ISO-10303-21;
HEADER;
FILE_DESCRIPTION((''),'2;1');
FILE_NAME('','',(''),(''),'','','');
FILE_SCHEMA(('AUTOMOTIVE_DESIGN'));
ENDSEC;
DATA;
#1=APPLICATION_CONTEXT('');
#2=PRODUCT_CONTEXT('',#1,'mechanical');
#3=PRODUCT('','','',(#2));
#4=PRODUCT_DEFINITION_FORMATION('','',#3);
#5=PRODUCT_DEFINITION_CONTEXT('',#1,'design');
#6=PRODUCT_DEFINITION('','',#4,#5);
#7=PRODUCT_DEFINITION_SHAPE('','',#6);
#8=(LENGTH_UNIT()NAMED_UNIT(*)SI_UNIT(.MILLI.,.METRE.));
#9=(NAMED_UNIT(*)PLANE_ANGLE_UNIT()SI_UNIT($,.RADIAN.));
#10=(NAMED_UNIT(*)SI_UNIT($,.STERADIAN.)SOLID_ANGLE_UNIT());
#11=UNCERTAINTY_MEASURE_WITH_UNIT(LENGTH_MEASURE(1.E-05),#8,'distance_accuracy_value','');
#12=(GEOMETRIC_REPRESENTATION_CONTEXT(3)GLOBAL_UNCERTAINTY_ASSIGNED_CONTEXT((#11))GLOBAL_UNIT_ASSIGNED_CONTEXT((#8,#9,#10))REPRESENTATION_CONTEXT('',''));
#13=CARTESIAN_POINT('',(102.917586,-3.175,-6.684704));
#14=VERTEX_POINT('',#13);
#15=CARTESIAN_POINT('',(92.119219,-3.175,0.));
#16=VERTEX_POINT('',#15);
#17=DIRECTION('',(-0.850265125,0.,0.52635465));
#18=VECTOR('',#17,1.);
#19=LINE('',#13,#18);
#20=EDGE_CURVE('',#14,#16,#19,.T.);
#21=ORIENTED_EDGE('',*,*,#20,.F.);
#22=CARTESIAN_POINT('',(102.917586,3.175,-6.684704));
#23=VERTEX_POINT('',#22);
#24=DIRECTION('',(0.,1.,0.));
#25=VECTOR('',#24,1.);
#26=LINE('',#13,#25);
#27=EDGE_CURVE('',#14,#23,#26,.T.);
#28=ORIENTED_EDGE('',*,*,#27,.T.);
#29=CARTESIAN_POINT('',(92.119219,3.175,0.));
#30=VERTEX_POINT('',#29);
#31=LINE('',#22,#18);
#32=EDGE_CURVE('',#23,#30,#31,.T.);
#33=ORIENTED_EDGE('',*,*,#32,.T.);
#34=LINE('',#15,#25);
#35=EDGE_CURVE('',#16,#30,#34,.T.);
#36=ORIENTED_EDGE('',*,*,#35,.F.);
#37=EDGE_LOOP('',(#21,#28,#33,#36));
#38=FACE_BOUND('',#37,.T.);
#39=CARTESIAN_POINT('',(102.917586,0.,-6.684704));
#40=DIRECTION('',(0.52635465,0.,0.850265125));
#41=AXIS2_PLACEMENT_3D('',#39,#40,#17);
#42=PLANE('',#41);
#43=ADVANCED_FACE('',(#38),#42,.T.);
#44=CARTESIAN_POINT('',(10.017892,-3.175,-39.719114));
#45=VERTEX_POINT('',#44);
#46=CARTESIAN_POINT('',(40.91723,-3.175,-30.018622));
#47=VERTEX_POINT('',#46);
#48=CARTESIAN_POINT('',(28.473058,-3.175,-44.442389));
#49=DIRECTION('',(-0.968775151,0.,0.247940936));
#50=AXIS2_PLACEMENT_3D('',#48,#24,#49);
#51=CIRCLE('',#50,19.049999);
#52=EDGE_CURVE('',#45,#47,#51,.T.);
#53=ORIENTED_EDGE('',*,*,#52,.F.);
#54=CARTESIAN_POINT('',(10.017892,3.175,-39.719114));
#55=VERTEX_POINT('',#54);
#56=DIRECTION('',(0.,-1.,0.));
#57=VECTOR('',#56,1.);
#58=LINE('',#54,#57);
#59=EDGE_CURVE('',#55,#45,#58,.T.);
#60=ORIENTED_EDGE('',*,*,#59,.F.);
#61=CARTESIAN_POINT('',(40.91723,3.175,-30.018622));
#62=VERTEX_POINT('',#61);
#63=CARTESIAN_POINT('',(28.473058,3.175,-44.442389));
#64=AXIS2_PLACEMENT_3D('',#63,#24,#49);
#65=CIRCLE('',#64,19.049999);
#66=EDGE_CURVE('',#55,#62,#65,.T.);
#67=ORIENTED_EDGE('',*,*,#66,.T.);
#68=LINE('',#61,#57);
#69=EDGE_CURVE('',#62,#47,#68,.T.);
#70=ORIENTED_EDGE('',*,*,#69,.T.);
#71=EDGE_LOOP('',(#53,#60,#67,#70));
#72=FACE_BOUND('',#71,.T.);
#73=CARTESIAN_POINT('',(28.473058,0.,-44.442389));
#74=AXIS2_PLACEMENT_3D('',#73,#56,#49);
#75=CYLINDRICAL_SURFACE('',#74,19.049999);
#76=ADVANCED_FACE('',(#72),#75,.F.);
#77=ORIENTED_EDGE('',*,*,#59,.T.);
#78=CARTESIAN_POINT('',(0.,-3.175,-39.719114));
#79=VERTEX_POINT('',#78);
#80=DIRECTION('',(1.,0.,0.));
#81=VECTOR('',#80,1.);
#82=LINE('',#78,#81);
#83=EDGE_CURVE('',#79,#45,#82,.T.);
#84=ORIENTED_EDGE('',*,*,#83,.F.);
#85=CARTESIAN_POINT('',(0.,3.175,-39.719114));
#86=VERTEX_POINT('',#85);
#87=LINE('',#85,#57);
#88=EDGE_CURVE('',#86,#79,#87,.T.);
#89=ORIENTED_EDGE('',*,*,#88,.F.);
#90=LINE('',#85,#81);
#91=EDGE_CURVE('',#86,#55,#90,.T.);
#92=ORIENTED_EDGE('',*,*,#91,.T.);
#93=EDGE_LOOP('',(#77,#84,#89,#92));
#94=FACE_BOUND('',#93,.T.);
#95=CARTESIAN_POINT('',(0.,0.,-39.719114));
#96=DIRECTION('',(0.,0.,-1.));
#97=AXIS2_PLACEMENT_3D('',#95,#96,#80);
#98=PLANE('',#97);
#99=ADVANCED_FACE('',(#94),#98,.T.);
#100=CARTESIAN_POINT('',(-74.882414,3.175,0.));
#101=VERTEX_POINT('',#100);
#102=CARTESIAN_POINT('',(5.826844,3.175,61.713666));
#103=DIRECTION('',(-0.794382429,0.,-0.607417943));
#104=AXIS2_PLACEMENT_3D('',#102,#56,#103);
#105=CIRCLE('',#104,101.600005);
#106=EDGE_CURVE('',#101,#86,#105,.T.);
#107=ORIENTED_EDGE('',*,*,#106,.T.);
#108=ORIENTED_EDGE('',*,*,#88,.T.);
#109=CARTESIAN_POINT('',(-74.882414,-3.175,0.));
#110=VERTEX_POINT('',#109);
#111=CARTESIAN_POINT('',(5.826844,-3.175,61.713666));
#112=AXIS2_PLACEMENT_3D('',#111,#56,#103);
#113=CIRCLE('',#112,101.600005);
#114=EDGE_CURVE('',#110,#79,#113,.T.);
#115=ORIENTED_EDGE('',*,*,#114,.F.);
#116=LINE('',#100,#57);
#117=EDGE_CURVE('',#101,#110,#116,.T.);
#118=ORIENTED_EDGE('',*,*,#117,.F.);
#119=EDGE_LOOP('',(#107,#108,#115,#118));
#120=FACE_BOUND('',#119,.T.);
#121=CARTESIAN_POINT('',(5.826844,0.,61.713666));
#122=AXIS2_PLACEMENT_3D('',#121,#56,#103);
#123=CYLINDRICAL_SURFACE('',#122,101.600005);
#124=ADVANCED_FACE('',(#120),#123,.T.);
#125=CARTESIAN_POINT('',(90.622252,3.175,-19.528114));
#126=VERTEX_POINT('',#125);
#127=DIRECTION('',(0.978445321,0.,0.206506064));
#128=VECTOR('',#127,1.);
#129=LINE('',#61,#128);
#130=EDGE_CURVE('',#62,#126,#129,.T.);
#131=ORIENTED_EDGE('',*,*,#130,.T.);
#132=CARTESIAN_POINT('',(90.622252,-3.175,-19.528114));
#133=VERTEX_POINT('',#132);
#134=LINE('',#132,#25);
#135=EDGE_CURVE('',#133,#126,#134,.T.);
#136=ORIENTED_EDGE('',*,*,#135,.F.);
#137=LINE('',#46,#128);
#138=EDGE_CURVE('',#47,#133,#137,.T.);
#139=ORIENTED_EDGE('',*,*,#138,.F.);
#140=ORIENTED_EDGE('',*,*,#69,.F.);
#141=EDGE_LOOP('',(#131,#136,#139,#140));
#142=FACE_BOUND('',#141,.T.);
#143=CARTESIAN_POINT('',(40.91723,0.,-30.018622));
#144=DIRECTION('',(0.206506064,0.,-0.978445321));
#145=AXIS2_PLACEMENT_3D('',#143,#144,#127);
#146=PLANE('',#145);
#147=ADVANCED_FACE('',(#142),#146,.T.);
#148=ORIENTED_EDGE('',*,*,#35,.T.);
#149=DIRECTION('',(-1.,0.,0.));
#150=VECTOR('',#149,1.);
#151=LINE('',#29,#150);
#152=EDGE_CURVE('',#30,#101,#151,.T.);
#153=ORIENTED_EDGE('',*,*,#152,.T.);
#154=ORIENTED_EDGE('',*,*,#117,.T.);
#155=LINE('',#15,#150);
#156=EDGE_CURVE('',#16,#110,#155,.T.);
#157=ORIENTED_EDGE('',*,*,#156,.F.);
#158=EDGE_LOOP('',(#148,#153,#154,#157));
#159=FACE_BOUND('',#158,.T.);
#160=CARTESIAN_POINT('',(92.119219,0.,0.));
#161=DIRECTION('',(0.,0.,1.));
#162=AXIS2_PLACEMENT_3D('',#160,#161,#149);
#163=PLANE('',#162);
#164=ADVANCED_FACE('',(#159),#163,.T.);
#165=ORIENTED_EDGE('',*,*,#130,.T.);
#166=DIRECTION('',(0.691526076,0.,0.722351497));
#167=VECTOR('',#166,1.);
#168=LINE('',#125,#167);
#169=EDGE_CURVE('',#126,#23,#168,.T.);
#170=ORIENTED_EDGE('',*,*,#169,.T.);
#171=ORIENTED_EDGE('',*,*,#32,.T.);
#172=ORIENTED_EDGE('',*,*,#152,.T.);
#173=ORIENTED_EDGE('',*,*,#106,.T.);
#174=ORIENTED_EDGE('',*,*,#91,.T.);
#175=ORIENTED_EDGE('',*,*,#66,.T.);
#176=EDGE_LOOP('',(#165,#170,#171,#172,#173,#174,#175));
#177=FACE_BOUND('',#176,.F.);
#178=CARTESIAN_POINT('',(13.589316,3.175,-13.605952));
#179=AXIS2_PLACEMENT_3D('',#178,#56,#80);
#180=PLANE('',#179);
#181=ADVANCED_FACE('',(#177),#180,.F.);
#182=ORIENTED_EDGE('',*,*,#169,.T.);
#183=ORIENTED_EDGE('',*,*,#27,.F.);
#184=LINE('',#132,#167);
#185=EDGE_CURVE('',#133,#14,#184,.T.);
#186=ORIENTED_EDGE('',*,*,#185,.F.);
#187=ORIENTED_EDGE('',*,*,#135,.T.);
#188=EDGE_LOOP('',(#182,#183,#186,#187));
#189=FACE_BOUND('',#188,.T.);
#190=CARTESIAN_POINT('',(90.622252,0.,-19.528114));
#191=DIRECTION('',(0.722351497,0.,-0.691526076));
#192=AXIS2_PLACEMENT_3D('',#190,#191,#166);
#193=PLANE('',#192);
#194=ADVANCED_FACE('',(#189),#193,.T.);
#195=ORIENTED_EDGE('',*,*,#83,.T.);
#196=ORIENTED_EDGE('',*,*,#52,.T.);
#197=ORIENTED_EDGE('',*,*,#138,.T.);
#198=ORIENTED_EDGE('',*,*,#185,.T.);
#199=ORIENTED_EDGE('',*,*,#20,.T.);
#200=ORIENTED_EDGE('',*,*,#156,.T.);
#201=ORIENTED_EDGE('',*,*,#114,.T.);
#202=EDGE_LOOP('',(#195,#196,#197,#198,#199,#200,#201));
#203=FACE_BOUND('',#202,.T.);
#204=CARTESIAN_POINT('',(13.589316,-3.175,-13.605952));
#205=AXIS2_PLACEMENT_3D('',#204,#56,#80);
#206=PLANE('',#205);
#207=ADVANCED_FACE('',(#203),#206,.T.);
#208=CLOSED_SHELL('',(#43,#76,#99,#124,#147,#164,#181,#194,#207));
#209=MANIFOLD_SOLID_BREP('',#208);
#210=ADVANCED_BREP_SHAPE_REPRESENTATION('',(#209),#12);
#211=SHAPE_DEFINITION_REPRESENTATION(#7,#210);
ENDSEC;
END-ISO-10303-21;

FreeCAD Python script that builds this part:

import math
import FreeCAD as App
import Part
import Sketcher
from FreeCAD import Vector
Q = App.Units.Quantity

doc = App.newDocument("Part")
body = doc.addObject("PartDesign::Body", "Body")

# Sketch on XZ plane
sketch1 = body.newObject("Sketcher::SketchObject", "Sketch")
sketch1.AttachmentSupport = (doc.getObject("XZ_Plane"), [""])
sketch1.MapMode = "FlatFace"
sketch1.addGeometry(Part.LineSegment(Vector(92.119219, 0, 0), Vector(-74.882414, 0, 0)), False)
sketch1.addGeometry(Part.ArcOfCircle(Part.Circle(Vector(5.826844, 61.713666, 0), Vector(0, 0, 1), 101.600005), math.radians(-142.596963), math.radians(-93.287764)), False)
sketch1.addGeometry(Part.LineSegment(Vector(0, -39.719114, 0), Vector(10.017892, -39.719114, 0)), False)
sketch1.addGeometry(Part.ArcOfCircle(Part.Circle(Vector(28.473058, -44.442389, 0), Vector(0, 0, 1), 19.049999), math.radians(49.213864), math.radians(165.644299)), False)
sketch1.addGeometry(Part.LineSegment(Vector(40.91723, -30.018622, 0), Vector(90.622252, -19.528114, 0)), False)
sketch1.addGeometry(Part.LineSegment(Vector(90.622252, -19.528114, 0), Vector(102.917586, -6.684704, 0)), False)
sketch1.addGeometry(Part.LineSegment(Vector(102.917586, -6.684704, 0), Vector(92.119219, 0, 0)), False)
sketch1.addConstraint(Sketcher.Constraint("Coincident", 0, 2, 1, 1))
sketch1.addConstraint(Sketcher.Constraint("Coincident", 1, 2, 2, 1))
sketch1.addConstraint(Sketcher.Constraint("Coincident", 2, 2, 3, 2))
sketch1.addConstraint(Sketcher.Constraint("Coincident", 3, 1, 4, 1))
sketch1.addConstraint(Sketcher.Constraint("Coincident", 4, 2, 5, 1))
sketch1.addConstraint(Sketcher.Constraint("Coincident", 5, 2, 6, 1))
sketch1.addConstraint(Sketcher.Constraint("Coincident", 6, 2, 0, 1))
sketch1.addConstraint(Sketcher.Constraint("Horizontal", 0))
sketch1.addConstraint(Sketcher.Constraint("Horizontal", 2))
sketch1.addConstraint(Sketcher.Constraint("PointOnObject", 0, 2, -1))
sketch1.addConstraint(Sketcher.Constraint("PointOnObject", 1, 2, -2))
sketch1.addConstraint(Sketcher.Constraint("Radius", 1, Q("4.0000002 in")))
sketch1.addConstraint(Sketcher.Constraint("Radius", 3, Q("0.75 in")))
sketch1.addConstraint(Sketcher.Constraint("Distance", 4, Q("2 in")))
sketch1.addConstraint(Sketcher.Constraint("Distance", 5, Q("0.7 in")))
sketch1.addConstraint(Sketcher.Constraint("Distance", 6, Q("0.5 in")))
sketch1.addConstraint(Sketcher.Constraint("DistanceX", 2, 2, 4, 2, Q("3.1734 in")))
sketch1.addConstraint(Sketcher.Constraint("DistanceY", 2, 2, 4, 2, 20.191))
sketch1.addConstraint(Sketcher.Constraint("DistanceX", 0, 2, 0, 1, 167.001633))
sketch1.addConstraint(Sketcher.Constraint("DistanceX", 2, 1, 2, 2, 10.017892))
sketch1.addConstraint(Sketcher.Constraint("DistanceY", 3, 3, -1, 1, 44.442389))
sketch1.addConstraint(Sketcher.Constraint("DistanceX", -1, 1, 3, 1, 40.91723))
sketch1.addConstraint(Sketcher.Constraint("DistanceX", -1, 1, 6, 2, 92.119219))
pad1 = body.newObject("PartDesign::Pad", "Pad")
pad1.Profile = sketch1
pad1.Length = Q("0.25 in")
pad1.Midplane = True

doc.recompute()
